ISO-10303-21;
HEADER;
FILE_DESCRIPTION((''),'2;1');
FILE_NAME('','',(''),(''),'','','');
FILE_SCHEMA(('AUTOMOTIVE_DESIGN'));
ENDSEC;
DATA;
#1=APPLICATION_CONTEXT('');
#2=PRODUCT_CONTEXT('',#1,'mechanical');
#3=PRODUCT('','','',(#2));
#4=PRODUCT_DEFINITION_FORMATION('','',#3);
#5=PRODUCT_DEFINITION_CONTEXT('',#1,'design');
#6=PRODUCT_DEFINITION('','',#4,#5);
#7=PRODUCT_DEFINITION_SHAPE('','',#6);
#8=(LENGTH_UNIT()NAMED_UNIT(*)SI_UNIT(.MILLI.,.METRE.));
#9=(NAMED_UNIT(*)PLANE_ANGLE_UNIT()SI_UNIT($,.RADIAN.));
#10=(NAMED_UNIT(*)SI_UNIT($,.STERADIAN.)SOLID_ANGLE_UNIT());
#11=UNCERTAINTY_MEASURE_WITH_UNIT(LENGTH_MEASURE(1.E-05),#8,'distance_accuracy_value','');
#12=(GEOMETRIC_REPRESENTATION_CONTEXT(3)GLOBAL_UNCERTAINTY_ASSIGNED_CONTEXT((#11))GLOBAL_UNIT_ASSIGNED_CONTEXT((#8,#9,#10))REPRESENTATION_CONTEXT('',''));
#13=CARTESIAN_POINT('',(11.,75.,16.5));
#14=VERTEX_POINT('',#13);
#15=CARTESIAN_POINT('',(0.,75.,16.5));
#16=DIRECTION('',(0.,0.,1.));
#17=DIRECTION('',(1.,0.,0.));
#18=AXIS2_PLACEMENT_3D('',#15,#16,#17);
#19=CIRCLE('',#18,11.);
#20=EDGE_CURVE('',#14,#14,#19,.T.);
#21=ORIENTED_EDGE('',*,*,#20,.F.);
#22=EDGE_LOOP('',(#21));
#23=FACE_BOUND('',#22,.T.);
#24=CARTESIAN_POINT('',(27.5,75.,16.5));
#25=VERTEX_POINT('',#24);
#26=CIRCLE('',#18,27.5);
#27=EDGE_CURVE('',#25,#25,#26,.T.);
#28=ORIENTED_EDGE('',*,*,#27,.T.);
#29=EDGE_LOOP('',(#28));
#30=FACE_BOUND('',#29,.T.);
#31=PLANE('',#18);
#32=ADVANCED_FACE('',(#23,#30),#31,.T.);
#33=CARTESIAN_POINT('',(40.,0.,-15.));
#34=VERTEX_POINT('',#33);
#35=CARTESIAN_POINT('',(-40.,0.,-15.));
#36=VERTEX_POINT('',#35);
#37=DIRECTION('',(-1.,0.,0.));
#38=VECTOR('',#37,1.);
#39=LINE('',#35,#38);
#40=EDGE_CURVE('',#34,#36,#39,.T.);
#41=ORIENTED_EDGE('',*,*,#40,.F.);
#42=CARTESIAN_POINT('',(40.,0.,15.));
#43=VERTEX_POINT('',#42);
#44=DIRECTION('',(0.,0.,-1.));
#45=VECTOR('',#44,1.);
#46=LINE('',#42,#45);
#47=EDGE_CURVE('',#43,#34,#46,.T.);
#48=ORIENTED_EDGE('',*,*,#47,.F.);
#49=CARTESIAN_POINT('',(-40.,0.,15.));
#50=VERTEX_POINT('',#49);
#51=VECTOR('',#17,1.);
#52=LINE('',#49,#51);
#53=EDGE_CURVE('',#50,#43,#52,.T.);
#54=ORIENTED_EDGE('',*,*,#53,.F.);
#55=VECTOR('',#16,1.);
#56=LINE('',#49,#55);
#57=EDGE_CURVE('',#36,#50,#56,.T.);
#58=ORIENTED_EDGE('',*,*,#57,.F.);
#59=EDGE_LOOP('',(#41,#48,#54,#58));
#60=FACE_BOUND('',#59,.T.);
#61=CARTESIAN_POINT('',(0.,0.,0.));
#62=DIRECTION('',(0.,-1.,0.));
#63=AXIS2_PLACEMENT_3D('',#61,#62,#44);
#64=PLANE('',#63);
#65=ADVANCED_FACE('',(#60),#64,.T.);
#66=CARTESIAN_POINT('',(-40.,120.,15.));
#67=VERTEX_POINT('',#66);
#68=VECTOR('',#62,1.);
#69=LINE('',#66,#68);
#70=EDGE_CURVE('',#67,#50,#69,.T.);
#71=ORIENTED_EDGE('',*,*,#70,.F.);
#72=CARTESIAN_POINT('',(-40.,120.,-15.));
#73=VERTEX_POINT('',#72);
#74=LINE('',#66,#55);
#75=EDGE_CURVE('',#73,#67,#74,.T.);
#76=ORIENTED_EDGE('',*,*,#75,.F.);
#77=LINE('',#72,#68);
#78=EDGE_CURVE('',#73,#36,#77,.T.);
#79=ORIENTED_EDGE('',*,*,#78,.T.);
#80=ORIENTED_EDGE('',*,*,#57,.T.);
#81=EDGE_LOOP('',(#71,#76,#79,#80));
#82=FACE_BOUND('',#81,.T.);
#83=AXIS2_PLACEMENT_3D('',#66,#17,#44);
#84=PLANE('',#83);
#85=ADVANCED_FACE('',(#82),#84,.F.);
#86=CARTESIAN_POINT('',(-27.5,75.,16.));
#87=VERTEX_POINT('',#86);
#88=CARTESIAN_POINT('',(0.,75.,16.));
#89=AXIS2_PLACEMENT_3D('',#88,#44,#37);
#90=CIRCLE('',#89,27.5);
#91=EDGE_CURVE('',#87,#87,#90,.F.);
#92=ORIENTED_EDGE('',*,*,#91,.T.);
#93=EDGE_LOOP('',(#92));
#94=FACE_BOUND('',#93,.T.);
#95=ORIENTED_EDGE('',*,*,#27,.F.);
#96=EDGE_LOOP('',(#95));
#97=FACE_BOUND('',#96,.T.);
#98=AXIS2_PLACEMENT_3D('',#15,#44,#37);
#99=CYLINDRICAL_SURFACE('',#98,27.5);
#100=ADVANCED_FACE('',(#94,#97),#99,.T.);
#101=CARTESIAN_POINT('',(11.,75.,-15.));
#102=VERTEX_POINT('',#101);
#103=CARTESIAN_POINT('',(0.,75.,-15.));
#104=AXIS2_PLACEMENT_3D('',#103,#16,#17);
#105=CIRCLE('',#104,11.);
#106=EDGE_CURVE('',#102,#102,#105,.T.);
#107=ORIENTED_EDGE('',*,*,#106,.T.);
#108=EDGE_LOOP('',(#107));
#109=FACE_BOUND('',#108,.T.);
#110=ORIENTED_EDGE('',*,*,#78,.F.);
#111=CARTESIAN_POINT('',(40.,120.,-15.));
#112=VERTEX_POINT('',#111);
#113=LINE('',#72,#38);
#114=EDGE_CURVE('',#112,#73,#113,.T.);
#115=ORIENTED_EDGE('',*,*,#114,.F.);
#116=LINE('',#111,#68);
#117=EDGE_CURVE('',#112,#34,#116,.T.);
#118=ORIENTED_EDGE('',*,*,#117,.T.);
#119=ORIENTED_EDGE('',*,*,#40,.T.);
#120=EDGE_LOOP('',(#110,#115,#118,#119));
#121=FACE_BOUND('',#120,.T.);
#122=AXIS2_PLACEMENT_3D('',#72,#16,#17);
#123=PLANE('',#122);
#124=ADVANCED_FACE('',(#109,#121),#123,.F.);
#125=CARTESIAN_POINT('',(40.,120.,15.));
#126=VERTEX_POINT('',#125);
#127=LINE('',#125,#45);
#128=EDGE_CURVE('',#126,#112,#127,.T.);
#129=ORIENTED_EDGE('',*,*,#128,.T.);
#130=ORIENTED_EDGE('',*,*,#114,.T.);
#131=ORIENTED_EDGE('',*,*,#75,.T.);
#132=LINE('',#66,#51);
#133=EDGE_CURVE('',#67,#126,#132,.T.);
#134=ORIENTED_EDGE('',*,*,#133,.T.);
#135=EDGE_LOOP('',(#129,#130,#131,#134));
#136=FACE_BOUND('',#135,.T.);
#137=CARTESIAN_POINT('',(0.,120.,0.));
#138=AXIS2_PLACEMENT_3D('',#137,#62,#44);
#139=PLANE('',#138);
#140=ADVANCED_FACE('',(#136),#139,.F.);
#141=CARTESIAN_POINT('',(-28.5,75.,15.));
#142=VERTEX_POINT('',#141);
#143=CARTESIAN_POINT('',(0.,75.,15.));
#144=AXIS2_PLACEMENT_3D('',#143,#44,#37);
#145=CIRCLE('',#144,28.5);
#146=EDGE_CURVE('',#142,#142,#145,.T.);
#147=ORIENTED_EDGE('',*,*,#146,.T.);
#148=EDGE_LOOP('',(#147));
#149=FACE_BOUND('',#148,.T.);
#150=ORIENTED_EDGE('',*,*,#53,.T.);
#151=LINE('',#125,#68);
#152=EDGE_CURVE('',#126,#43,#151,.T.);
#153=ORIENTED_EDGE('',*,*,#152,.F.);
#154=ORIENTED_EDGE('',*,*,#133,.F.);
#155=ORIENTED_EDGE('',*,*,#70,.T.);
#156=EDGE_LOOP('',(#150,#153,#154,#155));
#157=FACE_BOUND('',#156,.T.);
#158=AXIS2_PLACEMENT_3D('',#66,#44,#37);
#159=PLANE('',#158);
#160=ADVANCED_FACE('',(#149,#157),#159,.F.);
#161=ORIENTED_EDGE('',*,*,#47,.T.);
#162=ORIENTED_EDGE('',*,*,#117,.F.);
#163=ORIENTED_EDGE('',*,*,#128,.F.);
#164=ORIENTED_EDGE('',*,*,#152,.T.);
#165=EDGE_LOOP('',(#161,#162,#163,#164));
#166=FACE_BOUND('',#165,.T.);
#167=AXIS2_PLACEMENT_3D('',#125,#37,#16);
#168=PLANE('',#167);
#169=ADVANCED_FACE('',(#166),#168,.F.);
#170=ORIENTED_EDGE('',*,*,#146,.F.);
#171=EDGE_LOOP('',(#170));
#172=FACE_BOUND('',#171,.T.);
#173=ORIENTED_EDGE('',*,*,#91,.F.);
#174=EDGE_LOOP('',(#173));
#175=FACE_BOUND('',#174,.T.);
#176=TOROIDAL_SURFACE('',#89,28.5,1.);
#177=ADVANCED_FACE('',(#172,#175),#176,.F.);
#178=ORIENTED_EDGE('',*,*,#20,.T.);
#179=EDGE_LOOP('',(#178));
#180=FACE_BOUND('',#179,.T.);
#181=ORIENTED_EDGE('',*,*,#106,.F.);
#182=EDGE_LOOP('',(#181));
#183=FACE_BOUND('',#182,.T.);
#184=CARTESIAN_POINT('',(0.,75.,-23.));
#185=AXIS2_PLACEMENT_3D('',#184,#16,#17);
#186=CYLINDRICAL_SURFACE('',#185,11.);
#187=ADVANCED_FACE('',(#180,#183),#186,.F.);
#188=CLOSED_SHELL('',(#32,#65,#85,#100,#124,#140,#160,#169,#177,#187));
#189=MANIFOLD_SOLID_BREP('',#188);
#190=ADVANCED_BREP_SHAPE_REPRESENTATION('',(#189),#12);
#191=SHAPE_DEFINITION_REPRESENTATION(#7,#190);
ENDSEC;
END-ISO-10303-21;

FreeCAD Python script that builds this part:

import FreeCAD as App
import Part
import Sketcher

V = App.Vector


def edges_at(feature, points):
    """Names of the edges that pass closest to the given points."""
    edges = feature.Shape.Edges
    near = lambda p: min(range(len(edges)), key=lambda i: edges[i].distToShape(Part.Vertex(*p))[0])
    return sorted({f"Edge{near(p) + 1}" for p in points})

doc = App.newDocument("Part")
params = doc.addObject("Spreadsheet::Sheet", "Params")
for row, (alias, value) in enumerate([
    ("sketch1_width", "80 mm"),
    ("sketch1_height", "30 mm"),
    ("pad1_length", "120 mm"),
    ("sketch2_diameter", "55 mm"),
    ("pad2_length", "1.5 mm"),
    ("sketch3_diameter", "22 mm"),
    ("pocket1_length", "39.5 mm"),
    ("fillet_radius", "1 mm"),
], start=1):
    params.set(f"A{row}", alias)
    params.set(f"B{row}", "=" + value)
    params.setAlias(f"B{row}", alias)

body = doc.addObject("PartDesign::Body", "Body")

sketch1 = body.newObject("Sketcher::SketchObject", "Sketch")
sketch1.AttachmentSupport = (doc.getObject("XZ_Plane"), [""])
sketch1.MapMode = "FlatFace"
sketch1.addGeometry([
    Part.LineSegment(V(-40, -15, 0), V(-40, 15, 0)),
    Part.LineSegment(V(-40, 15, 0), V(40, 15, 0)),
    Part.LineSegment(V(40, 15, 0), V(40, -15, 0)),
    Part.LineSegment(V(40, -15, 0), V(-40, -15, 0)),
], False)
sketch1.addConstraint([
    Sketcher.Constraint("Coincident", 0, 2, 1, 1),
    Sketcher.Constraint("Coincident", 1, 2, 2, 1),
    Sketcher.Constraint("Coincident", 2, 2, 3, 1),
    Sketcher.Constraint("Coincident", 3, 2, 0, 1),
    Sketcher.Constraint("Vertical", 0),
    Sketcher.Constraint("Horizontal", 1),
    Sketcher.Constraint("Vertical", 2),
    Sketcher.Constraint("Horizontal", 3),
    Sketcher.Constraint("Symmetric", 0, 2, 2, 2, -1, 1),
    Sketcher.Constraint("DistanceX", 1, 1, 1, 2, 80.0),
    Sketcher.Constraint("DistanceY", 0, 1, 0, 2, 30.0),
])
sketch1.setExpression("Constraints[9]", "Params.sketch1_width")
sketch1.setExpression("Constraints[10]", "Params.sketch1_height")
pad1 = body.newObject("PartDesign::Pad", "Pad")
pad1.Profile = sketch1
pad1.setExpression("Length", "Params.pad1_length")
pad1.Reversed = True

sketch2 = body.newObject("Sketcher::SketchObject", "Sketch001")
sketch2.AttachmentSupport = (doc.getObject("XY_Plane"), [""])
sketch2.MapMode = "FlatFace"
sketch2.AttachmentOffset = App.Placement(V(0, 0, 15), App.Rotation())
sketch2.addGeometry(Part.Circle(V(0, 75, 0), V(0, 0, 1), 27.5), False)
sketch2.addConstraint([
    Sketcher.Constraint("PointOnObject", 0, 3, -2),
    Sketcher.Constraint("Diameter", 0, 55.0),
    Sketcher.Constraint("DistanceY", -1, 1, 0, 3, 75.0),
])
sketch2.setExpression("Constraints[1]", "Params.sketch2_diameter")
pad2 = body.newObject("PartDesign::Pad", "Pad001")
pad2.Profile = sketch2
pad2.setExpression("Length", "Params.pad2_length")

sketch3 = body.newObject("Sketcher::SketchObject", "Sketch002")
sketch3.AttachmentSupport = (doc.getObject("XY_Plane"), [""])
sketch3.MapMode = "FlatFace"
sketch3.AttachmentOffset = App.Placement(V(0, 0, 16.5), App.Rotation())
sketch3.addGeometry(Part.Circle(V(0, 75, 0), V(0, 0, 1), 11), False)
sketch3.addConstraint([
    Sketcher.Constraint("PointOnObject", 0, 3, -2),
    Sketcher.Constraint("Diameter", 0, 22.0),
    Sketcher.Constraint("DistanceY", -1, 1, 0, 3, 75.0),
])
sketch3.setExpression("Constraints[1]", "Params.sketch3_diameter")
pocket1 = body.newObject("PartDesign::Pocket", "Pocket")
pocket1.Profile = sketch3
pocket1.setExpression("Length", "Params.pocket1_length")
doc.recompute()

fillet = body.newObject("PartDesign::Fillet", "Fillet")
fillet.Base = (pocket1, edges_at(pocket1, [(27.5, 75, 15)]))
fillet.setExpression("Radius", "Params.fillet_radius")

doc.recompute()
